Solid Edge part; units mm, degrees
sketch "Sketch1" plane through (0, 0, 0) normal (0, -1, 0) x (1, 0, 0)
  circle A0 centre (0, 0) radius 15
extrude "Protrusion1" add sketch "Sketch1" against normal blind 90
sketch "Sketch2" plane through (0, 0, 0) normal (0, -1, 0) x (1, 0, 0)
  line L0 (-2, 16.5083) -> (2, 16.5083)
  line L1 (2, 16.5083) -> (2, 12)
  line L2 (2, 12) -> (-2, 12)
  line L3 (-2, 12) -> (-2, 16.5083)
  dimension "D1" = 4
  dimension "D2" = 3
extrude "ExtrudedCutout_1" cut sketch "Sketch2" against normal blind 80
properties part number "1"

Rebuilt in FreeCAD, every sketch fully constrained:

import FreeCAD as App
import Part
import Sketcher
from FreeCAD import Vector
Q = App.Units.Quantity


def add_polygon(sketch, points):
    """Adds a closed chain of lines whose ends are joined by coincident constraints."""
    first, n = sketch.GeometryCount, len(points)
    for a, b in zip(points, points[1:] + points[:1]):
        sketch.addGeometry(Part.LineSegment(App.Vector(*a, 0), App.Vector(*b, 0)), False)
    for i in range(n):
        sketch.addConstraint(Sketcher.Constraint("Coincident", first + i, 2, first + (i + 1) % n, 1))

doc = App.newDocument("Part")
body = doc.addObject("PartDesign::Body", "Body")

# Sketch on XZ plane
sketch1 = body.newObject("Sketcher::SketchObject", "Sketch")
sketch1.AttachmentSupport = (doc.getObject("XZ_Plane"), [""])
sketch1.MapMode = "FlatFace"
sketch1.addGeometry(Part.Circle(Vector(0, 0, 0), Vector(0, 0, 1), 15), False)
sketch1.addConstraint([
    Sketcher.Constraint("Coincident", 0, 3, -1, 1),
    Sketcher.Constraint("Diameter", 0, Q("30 mm")),
])
pad1 = body.newObject("PartDesign::Pad", "Pad")
pad1.Profile = sketch1
pad1.Length = 90
pad1.Reversed = True

# Sketch on XZ plane
sketch2 = body.newObject("Sketcher::SketchObject", "Sketch001")
sketch2.AttachmentSupport = (doc.getObject("XZ_Plane"), [""])
sketch2.MapMode = "FlatFace"
add_polygon(sketch2, [(2, 16.5083), (-2, 16.5083), (-2, 12), (2, 12)])  # lines 0-3
sketch2.addConstraint([
    Sketcher.Constraint("Horizontal", 0),
    Sketcher.Constraint("Vertical", 1),
    Sketcher.Constraint("Horizontal", 2),
    Sketcher.Constraint("Vertical", 3),
    Sketcher.Constraint("DistanceX", 0, 2, -1, 1, Q("2 mm")),
    Sketcher.Constraint("DistanceX", -1, 1, 2, 2, Q("2 mm")),
    Sketcher.Constraint("DistanceY", -1, 1, 1, 2, Q("12 mm")),
    Sketcher.Constraint("DistanceY", 1, 2, 1, 1, Q("4.5083 mm")),
])
pocket1 = body.newObject("PartDesign::Pocket", "Pocket")
pocket1.Profile = sketch2
pocket1.Length = 80

doc.recompute()
